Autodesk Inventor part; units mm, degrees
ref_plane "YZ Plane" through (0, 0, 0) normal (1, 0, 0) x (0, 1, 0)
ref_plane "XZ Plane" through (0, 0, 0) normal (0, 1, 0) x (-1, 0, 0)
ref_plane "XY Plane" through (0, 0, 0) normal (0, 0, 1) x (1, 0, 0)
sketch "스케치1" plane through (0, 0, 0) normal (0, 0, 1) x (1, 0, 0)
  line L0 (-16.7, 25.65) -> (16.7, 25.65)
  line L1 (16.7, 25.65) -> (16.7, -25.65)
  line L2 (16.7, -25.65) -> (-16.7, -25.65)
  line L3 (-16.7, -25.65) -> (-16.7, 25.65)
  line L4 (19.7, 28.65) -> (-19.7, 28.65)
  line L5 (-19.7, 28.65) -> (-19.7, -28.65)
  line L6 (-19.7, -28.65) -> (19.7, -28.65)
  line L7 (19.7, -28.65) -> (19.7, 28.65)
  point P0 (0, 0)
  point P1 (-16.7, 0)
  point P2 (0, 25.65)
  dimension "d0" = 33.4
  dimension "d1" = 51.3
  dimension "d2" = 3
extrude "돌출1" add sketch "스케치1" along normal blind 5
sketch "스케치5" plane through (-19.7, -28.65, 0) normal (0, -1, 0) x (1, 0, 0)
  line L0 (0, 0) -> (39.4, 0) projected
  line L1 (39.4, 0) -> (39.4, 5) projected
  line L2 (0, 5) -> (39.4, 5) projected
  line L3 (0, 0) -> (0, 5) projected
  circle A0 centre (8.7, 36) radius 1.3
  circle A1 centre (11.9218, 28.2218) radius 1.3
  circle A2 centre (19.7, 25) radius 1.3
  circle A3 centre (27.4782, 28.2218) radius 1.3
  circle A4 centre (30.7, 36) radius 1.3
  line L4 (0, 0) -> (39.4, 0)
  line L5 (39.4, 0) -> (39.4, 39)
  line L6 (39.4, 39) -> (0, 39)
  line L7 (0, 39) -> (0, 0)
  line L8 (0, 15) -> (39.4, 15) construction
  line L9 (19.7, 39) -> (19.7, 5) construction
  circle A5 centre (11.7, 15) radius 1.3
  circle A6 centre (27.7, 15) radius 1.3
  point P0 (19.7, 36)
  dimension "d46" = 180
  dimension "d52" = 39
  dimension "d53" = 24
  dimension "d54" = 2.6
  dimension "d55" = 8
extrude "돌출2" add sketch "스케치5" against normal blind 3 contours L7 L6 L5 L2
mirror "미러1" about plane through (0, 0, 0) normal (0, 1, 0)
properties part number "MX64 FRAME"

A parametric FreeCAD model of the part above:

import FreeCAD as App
import Part
import Sketcher

V = App.Vector
Q = App.Units.Quantity


def add_polygon(sketch, points):
    """Adds a closed chain of lines whose ends are joined by coincident constraints."""
    first, n = sketch.GeometryCount, len(points)
    for a, b in zip(points, points[1:] + points[:1]):
        sketch.addGeometry(Part.LineSegment(App.Vector(*a, 0), App.Vector(*b, 0)), False)
    for i in range(n):
        sketch.addConstraint(Sketcher.Constraint("Coincident", first + i, 2, first + (i + 1) % n, 1))

doc = App.newDocument("Part")
body = doc.addObject("PartDesign::Body", "Body")

# Sketch on XY plane
sketch1 = doc.addObject("Sketcher::SketchObject", "Sketch")
body.addObject(sketch1)
sketch1.AttachmentSupport = (doc.XY_Plane, [""])
sketch1.MapMode = "FlatFace"
add_polygon(sketch1, [(20, -29), (20, 29), (-20, 29), (-20, -29)])  # lines 0-3
add_polygon(sketch1, [(-17, -26), (-17, 26), (17, 26), (17, -26)])  # lines 4-7
sketch1.addConstraint(Sketcher.Constraint("Vertical", 0))
sketch1.addConstraint(Sketcher.Constraint("Horizontal", 1))
sketch1.addConstraint(Sketcher.Constraint("Vertical", 2))
sketch1.addConstraint(Sketcher.Constraint("Horizontal", 3))
sketch1.addConstraint(Sketcher.Constraint("Vertical", 4))
sketch1.addConstraint(Sketcher.Constraint("Horizontal", 5))
sketch1.addConstraint(Sketcher.Constraint("Vertical", 6))
sketch1.addConstraint(Sketcher.Constraint("Horizontal", 7))
sketch1.addConstraint(Sketcher.Constraint("Symmetric", 0, 2, 2, 2, -1, 1))
sketch1.addConstraint(Sketcher.Constraint("Symmetric", 4, 2, 6, 2, -1, 1))
sketch1.addConstraint(Sketcher.Constraint("DistanceX", 5, 1, 5, 2, Q("33.4 mm")))
sketch1.addConstraint(Sketcher.Constraint("DistanceY", 4, 1, 4, 2, Q("51.3 mm")))
sketch1.addConstraint(Sketcher.Constraint("DistanceX", 1, 2, 4, 2, Q("3 mm")))
sketch1.addConstraint(Sketcher.Constraint("DistanceY", 4, 2, 1, 2, Q("3 mm")))
pad1 = doc.addObject("PartDesign::Pad", "Pad")
body.addObject(pad1)
pad1.Profile = sketch1
pad1.Length = 5

# Sketch on XZ plane
sketch2 = doc.addObject("Sketcher::SketchObject", "Sketch001")
body.addObject(sketch2)
sketch2.AttachmentSupport = (doc.XZ_Plane, [""])
sketch2.MapMode = "FlatFace"
sketch2.AttachmentOffset = App.Placement(V(0, 0, 28.65), App.Rotation())
add_polygon(sketch2, [(-19.7, 39), (-19.7, 5), (19.7, 5), (19.7, 39)])  # lines 0-3
sketch2.addGeometry(Part.Circle(V(-8, 15, 0), V(0, 0, 1), 1.3), False)  # 4
sketch2.addGeometry(Part.Circle(V(8, 15, 0), V(0, 0, 1), 1.3), False)  # 5
sketch2.addGeometry(Part.Circle(V(-7.8, 28.2, 0), V(0, 0, 1), 1.3), False)  # 6
sketch2.addGeometry(Part.Circle(V(-11, 36, 0), V(0, 0, 1), 1.3), False)  # 7
sketch2.addGeometry(Part.Circle(V(0, 25, 0), V(0, 0, 1), 1.3), False)  # 8
sketch2.addGeometry(Part.Circle(V(7.8, 28.2, 0), V(0, 0, 1), 1.3), False)  # 9
sketch2.addGeometry(Part.Circle(V(11, 36, 0), V(0, 0, 1), 1.3), False)  # 10
sketch2.addConstraint(Sketcher.Constraint("Vertical", 0))
sketch2.addConstraint(Sketcher.Constraint("Horizontal", 1))
sketch2.addConstraint(Sketcher.Constraint("Vertical", 2))
sketch2.addConstraint(Sketcher.Constraint("Horizontal", 3))
sketch2.addConstraint(Sketcher.Constraint("Equal", 4, 5))
sketch2.addConstraint(Sketcher.Constraint("Equal", 5, 6))
sketch2.addConstraint(Sketcher.Constraint("Equal", 6, 7))
sketch2.addConstraint(Sketcher.Constraint("Equal", 7, 8))
sketch2.addConstraint(Sketcher.Constraint("Equal", 8, 9))
sketch2.addConstraint(Sketcher.Constraint("Equal", 9, 10))
sketch2.addConstraint(Sketcher.Constraint("Symmetric", 4, 3, 5, 3, -2))
sketch2.addConstraint(Sketcher.Constraint("Symmetric", 6, 3, 9, 3, -2))
sketch2.addConstraint(Sketcher.Constraint("Symmetric", 7, 3, 10, 3, -2))
sketch2.addConstraint(Sketcher.Constraint("PointOnObject", 8, 3, -2))
sketch2.addConstraint(Sketcher.Constraint("Diameter", 4, Q("2.6 mm")))
sketch2.addConstraint(Sketcher.Constraint("DistanceX", 4, 3, -1, 1, Q("8 mm")))
sketch2.addConstraint(Sketcher.Constraint("DistanceY", -1, 1, 2, 2, Q("39 mm")))
sketch2.addConstraint(Sketcher.Constraint("DistanceY", 5, 3, 2, 2, Q("24 mm")))
sketch2.addConstraint(Sketcher.Constraint("DistanceY", 0, 2, 0, 1, Q("34 mm")))
sketch2.addConstraint(Sketcher.Constraint("DistanceX", 1, 1, 1, 2, Q("39.4 mm")))
sketch2.addConstraint(Sketcher.Constraint("DistanceX", 7, 3, -1, 1, Q("11 mm")))
sketch2.addConstraint(Sketcher.Constraint("DistanceY", -1, 1, 7, 3, Q("36 mm")))
sketch2.addConstraint(Sketcher.Constraint("DistanceY", -1, 1, 8, 3, Q("25 mm")))
sketch2.addConstraint(Sketcher.Constraint("DistanceX", 0, 2, -1, 1, Q("19.7 mm")))
sketch2.addConstraint(Sketcher.Constraint("DistanceX", 6, 3, -1, 1, Q("7.7782 mm")))
sketch2.addConstraint(Sketcher.Constraint("DistanceY", -1, 1, 6, 3, Q("28.2218 mm")))
pad2 = doc.addObject("PartDesign::Pad", "Pad001")
body.addObject(pad2)
pad2.Profile = sketch2
pad2.Length = 3
pad2.Reversed = True
doc.recompute()

mirrored = doc.addObject("PartDesign::Mirrored", "Mirrored")
body.addObject(mirrored)
mirrored.TransformMode = "Transform body"
mirrored.MirrorPlane = (doc.XZ_Plane, [""])
body.Tip = mirrored

doc.recompute()
